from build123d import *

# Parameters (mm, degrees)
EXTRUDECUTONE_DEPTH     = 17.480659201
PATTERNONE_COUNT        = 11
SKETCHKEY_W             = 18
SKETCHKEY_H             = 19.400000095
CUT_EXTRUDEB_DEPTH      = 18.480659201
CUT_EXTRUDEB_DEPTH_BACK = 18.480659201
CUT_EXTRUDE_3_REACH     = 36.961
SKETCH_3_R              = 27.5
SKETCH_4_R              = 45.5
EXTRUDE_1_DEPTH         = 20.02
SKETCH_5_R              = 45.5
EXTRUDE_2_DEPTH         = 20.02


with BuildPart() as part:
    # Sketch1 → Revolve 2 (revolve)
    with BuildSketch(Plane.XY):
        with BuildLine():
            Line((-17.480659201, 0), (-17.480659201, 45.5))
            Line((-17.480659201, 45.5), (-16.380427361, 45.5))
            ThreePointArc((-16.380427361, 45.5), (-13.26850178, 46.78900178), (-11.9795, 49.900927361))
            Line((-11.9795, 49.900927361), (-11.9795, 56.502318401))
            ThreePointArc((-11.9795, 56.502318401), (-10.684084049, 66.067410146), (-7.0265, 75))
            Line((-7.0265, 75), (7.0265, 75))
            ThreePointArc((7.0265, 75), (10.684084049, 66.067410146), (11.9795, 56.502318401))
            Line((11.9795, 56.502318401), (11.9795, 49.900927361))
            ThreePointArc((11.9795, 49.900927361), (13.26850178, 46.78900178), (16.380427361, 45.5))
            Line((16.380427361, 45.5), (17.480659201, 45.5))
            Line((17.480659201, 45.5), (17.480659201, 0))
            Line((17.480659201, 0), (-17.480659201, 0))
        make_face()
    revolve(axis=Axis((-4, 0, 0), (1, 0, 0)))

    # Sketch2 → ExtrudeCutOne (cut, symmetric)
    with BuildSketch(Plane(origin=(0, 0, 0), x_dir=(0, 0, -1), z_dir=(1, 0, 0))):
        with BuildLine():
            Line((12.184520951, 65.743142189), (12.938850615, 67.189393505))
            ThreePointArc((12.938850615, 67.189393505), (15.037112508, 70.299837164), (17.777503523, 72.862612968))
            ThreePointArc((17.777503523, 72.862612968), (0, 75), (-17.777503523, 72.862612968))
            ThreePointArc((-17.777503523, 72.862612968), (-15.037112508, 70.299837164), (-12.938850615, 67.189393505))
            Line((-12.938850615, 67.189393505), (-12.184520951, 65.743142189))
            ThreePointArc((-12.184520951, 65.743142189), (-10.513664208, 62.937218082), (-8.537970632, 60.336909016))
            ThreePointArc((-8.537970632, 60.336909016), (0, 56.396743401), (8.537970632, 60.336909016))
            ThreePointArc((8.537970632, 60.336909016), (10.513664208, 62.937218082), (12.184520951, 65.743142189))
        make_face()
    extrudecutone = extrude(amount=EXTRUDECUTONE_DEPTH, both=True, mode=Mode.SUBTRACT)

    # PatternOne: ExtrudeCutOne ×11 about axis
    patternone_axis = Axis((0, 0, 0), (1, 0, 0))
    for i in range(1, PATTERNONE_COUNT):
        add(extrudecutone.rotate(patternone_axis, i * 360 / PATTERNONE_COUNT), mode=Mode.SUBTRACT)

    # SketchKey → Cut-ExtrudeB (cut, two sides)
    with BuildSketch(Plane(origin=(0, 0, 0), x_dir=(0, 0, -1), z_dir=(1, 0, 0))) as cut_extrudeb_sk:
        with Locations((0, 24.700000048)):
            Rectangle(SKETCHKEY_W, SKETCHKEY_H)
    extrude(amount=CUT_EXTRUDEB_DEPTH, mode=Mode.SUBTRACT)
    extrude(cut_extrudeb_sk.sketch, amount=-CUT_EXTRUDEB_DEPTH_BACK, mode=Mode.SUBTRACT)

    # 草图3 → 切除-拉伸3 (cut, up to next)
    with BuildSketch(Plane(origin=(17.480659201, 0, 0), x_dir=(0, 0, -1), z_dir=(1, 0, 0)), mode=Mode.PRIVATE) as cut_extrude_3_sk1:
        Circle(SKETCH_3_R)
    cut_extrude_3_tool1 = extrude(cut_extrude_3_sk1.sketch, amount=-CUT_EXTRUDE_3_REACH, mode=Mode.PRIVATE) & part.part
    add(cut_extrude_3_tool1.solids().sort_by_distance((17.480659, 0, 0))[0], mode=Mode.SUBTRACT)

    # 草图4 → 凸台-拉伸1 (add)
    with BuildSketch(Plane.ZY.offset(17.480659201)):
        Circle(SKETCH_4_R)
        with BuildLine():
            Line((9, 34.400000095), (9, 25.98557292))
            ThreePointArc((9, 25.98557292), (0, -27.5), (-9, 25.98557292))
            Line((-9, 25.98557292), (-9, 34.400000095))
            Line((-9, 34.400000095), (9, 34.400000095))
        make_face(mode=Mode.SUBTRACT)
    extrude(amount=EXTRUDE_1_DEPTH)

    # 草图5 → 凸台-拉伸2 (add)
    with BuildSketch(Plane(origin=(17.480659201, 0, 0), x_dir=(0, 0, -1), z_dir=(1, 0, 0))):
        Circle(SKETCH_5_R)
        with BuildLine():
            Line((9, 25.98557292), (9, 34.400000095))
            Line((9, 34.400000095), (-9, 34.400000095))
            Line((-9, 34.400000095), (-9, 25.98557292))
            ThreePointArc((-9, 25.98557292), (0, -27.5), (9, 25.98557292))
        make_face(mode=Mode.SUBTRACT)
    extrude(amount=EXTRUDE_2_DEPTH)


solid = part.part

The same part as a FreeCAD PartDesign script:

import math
import FreeCAD as App
import Part
import Sketcher

V = App.Vector

doc = App.newDocument("Part")
body = doc.addObject("PartDesign::Body", "Body")

# Sketch on XY plane
sketch1 = body.newObject("Sketcher::SketchObject", "Sketch")
sketch1.AttachmentSupport = (doc.getObject("XY_Plane"), [""])
sketch1.MapMode = "FlatFace"
sketch1.addGeometry([
    Part.LineSegment(V(-17.480659, 45.5, 0), V(-17.480659, 0, 0)),  # 0
    Part.LineSegment(V(-17.480659, 0, 0), V(17.480659, 0, 0)),  # 1
    Part.LineSegment(V(17.480659, 0, 0), V(17.480659, 45.5, 0)),  # 2
    Part.LineSegment(V(17.480659, 45.5, 0), V(16.380427, 45.5, 0)),  # 3
    Part.ArcOfCircle(Part.Circle(V(16.380427, 49.900927, 0), V(0, 0, 1), 4.400927), math.radians(180), math.radians(270)),  # 4
    Part.LineSegment(V(11.9795, 49.900927, 0), V(11.9795, 56.502318, 0)),  # 5
    Part.ArcOfCircle(Part.Circle(V(-26.1194, 56.212788, 0), V(0, 0, 1), 38.1), math.radians(0.435407), math.radians(29.544716)),  # 6
    Part.LineSegment(V(7.0265, 75, 0), V(-7.0265, 75, 0)),  # 7
    Part.ArcOfCircle(Part.Circle(V(26.1194, 56.212788, 0), V(0, 0, 1), 38.1), math.radians(150.455284), math.radians(179.564593)),  # 8
    Part.LineSegment(V(-11.9795, 56.502318, 0), V(-11.9795, 49.900927, 0)),  # 9
    Part.ArcOfCircle(Part.Circle(V(-16.380427, 49.900927, 0), V(0, 0, 1), 4.400927), math.radians(-90), math.radians(0)),  # 10
    Part.LineSegment(V(-16.380427, 45.5, 0), V(-17.480659, 45.5, 0)),  # 11
], False)
sketch1.addConstraint([
    Sketcher.Constraint("Coincident", 0, 2, 1, 1),
    Sketcher.Constraint("Coincident", 1, 2, 2, 1),
    Sketcher.Constraint("Coincident", 2, 2, 3, 1),
    Sketcher.Constraint("Tangent", 3, 2, 4, 2),
    Sketcher.Constraint("Tangent", 4, 1, 5, 1),
    Sketcher.Constraint("Coincident", 5, 2, 6, 1),
    Sketcher.Constraint("Coincident", 6, 2, 7, 1),
    Sketcher.Constraint("Coincident", 7, 2, 8, 1),
    Sketcher.Constraint("Coincident", 8, 2, 9, 1),
    Sketcher.Constraint("Tangent", 9, 2, 10, 2),
    Sketcher.Constraint("Tangent", 10, 1, 11, 1),
    Sketcher.Constraint("Coincident", 11, 2, 0, 1),
    Sketcher.Constraint("Vertical", 0),
    Sketcher.Constraint("Horizontal", 1),
    Sketcher.Constraint("Vertical", 2),
    Sketcher.Constraint("Horizontal", 3),
    Sketcher.Constraint("Vertical", 5),
    Sketcher.Constraint("Horizontal", 7),
    Sketcher.Constraint("Vertical", 9),
    Sketcher.Constraint("Horizontal", 11),
    Sketcher.Constraint("Equal", 6, 8),
    Sketcher.Constraint("Equal", 4, 10),
    Sketcher.Constraint("Symmetric", 0, 2, 1, 2, -1, 1),
    Sketcher.Constraint("Symmetric", 6, 3, 8, 3, -2),
    Sketcher.Constraint("Symmetric", 4, 3, 10, 3, -2),
    Sketcher.Constraint("Radius", 6, 38.1),
    Sketcher.Constraint("DistanceY", 0, 2, 0, 1, 45.5),
    Sketcher.Constraint("DistanceY", -1, 1, 6, 2, 75.0),
    Sketcher.Constraint("DistanceX", 7, 2, 7, 1, 14.053),
    Sketcher.Constraint("Radius", 4, 4.400927),
    Sketcher.Constraint("DistanceX", 6, 2, 5, 2, 4.953),
    Sketcher.Constraint("DistanceX", 1, 1, 1, 2, 34.961318),
    Sketcher.Constraint("DistanceY", 5, 1, 5, 2, 6.601391),
])
revolution = body.newObject("PartDesign::Revolution", "Revolution")
revolution.Profile = sketch1
revolution.ReferenceAxis = (sketch1, ["H_Axis"])
revolution.Angle = 360

# Sketch on YZ plane
sketch2 = body.newObject("Sketcher::SketchObject", "Sketch001")
sketch2.AttachmentSupport = (doc.getObject("YZ_Plane"), [""])
sketch2.MapMode = "FlatFace"
sketch2.addGeometry([
    Part.LineSegment(V(65.7, -12.2, 0), V(67.2, -12.9, 0)),  # 0
    Part.ArcOfCircle(Part.Circle(V(59.5, -27.7, 0), V(0, 0, 1), 16.7), math.radians(37), math.radians(62)),  # 1
    Part.ArcOfCircle(Part.Circle(V(0, 0, 0), V(0, 0, 1), 75), math.radians(-14), math.radians(14)),  # 2
    Part.ArcOfCircle(Part.Circle(V(59.5, 27.7, 0), V(0, 0, 1), 16.7), math.radians(-62), math.radians(-37)),  # 3
    Part.LineSegment(V(67.2, 12.9, 0), V(65.7, 12.2, 0)),  # 4
    Part.ArcOfCircle(Part.Circle(V(79.2, -13.5, 0), V(0, 0, 1), 29), math.radians(117.55), math.radians(130.45)),  # 5
    Part.ArcOfCircle(Part.Circle(V(67.6, 0, 0), V(0, 0, 1), 11.2), math.radians(130), math.radians(230)),  # 6
    Part.ArcOfCircle(Part.Circle(V(79.2, 13.5, 0), V(0, 0, 1), 29), math.radians(-130.45), math.radians(-117.55)),  # 7
], False)
sketch2.addConstraint([
    Sketcher.Constraint("Tangent", 0, 2, 1, 2),
    Sketcher.Constraint("Coincident", 1, 1, 2, 1),
    Sketcher.Constraint("Coincident", 2, 2, 3, 2),
    Sketcher.Constraint("Tangent", 3, 1, 4, 1),
    Sketcher.Constraint("Tangent", 4, 2, 5, 1),
    Sketcher.Constraint("Tangent", 5, 2, 6, 1),
    Sketcher.Constraint("Tangent", 6, 2, 7, 1),
    Sketcher.Constraint("Tangent", 7, 2, 0, 1),
    Sketcher.Constraint("Coincident", 2, 3, -1, 1),
    Sketcher.Constraint("Equal", 1, 3),
    Sketcher.Constraint("Equal", 5, 7),
    Sketcher.Constraint("Symmetric", 1, 3, 3, 3, -1),
    Sketcher.Constraint("Symmetric", 5, 3, 7, 3, -1),
    Sketcher.Constraint("Radius", 2, 75.0),
    Sketcher.Constraint("Radius", 1, 16.680351),
    Sketcher.Constraint("Radius", 5, 29.004575),
    Sketcher.Constraint("Radius", 6, 11.220575),
    Sketcher.Constraint("DistanceY", 0, 2, 3, 1, 25.877701),
    Sketcher.Constraint("Distance", 0, 1.631152),
    Sketcher.Constraint("DistanceX", -1, 1, 1, 3, 59.475529),
    Sketcher.Constraint("DistanceX", -1, 1, 5, 3, 79.156371),
])
pocket1 = body.newObject("PartDesign::Pocket", "Pocket")
pocket1.Profile = sketch2
pocket1.Length = 34.961318
pocket1.Midplane = True
doc.recompute()

polarpattern = body.newObject("PartDesign::PolarPattern", "PolarPattern")
polarpattern.Originals = [pocket1]
polarpattern.Axis = (doc.getObject("X_Axis"), [""])
polarpattern.Angle = 360
polarpattern.Occurrences = 11
body.Tip = polarpattern

# Sketch on YZ plane
sketch3 = body.newObject("Sketcher::SketchObject", "Sketch002")
sketch3.AttachmentSupport = (doc.getObject("YZ_Plane"), [""])
sketch3.MapMode = "FlatFace"
sketch3.addGeometry([
    Part.LineSegment(V(34, 9, 0), V(15, 9, 0)),
    Part.LineSegment(V(15, 9, 0), V(15, -9, 0)),
    Part.LineSegment(V(15, -9, 0), V(34, -9, 0)),
    Part.LineSegment(V(34, -9, 0), V(34, 9, 0)),
], False)
sketch3.addConstraint([
    Sketcher.Constraint("Coincident", 0, 2, 1, 1),
    Sketcher.Constraint("Coincident", 1, 2, 2, 1),
    Sketcher.Constraint("Coincident", 2, 2, 3, 1),
    Sketcher.Constraint("Coincident", 3, 2, 0, 1),
    Sketcher.Constraint("Horizontal", 0),
    Sketcher.Constraint("Vertical", 1),
    Sketcher.Constraint("Horizontal", 2),
    Sketcher.Constraint("Vertical", 3),
    Sketcher.Constraint("DistanceY", 1, 2, 1, 1, 18.0),
    Sketcher.Constraint("DistanceX", 0, 2, 0, 1, 19.4),
    Sketcher.Constraint("DistanceX", -1, 1, 0, 2, 15.0),
    Sketcher.Constraint("DistanceY", -1, 1, 0, 2, 9.0),
])
pocket2 = body.newObject("PartDesign::Pocket", "Pocket001")
pocket2.Profile = sketch3
pocket2.Type = "ThroughAll"
pocket2.Midplane = True

# Sketch on YZ plane
sketch4 = body.newObject("Sketcher::SketchObject", "Sketch003")
sketch4.AttachmentSupport = (doc.getObject("YZ_Plane"), [""])
sketch4.MapMode = "FlatFace"
sketch4.AttachmentOffset = App.Placement(V(0, 0, 17.480659), App.Rotation())
sketch4.addGeometry(Part.Circle(V(0, 0, 0), V(0, 0, 1), 28), False)
sketch4.addConstraint([
    Sketcher.Constraint("Coincident", 0, 3, -1, 1),
    Sketcher.Constraint("Diameter", 0, 55.0),
])
pocket3 = body.newObject("PartDesign::Pocket", "Pocket002")
pocket3.Profile = sketch4
pocket3.Type = "UpToFirst"

# Sketch on YZ plane
sketch5 = body.newObject("Sketcher::SketchObject", "Sketch004")
sketch5.AttachmentSupport = (doc.getObject("YZ_Plane"), [""])
sketch5.MapMode = "FlatFace"
sketch5.AttachmentOffset = App.Placement(V(0, 0, -17.480659), App.Rotation())
sketch5.addGeometry([
    Part.Circle(V(0, 0, 0), V(0, 0, 1), 46),  # 0
    Part.LineSegment(V(34, -9, 0), V(34, 9, 0)),  # 1
    Part.LineSegment(V(34, 9, 0), V(26, 9, 0)),  # 2
    Part.ArcOfCircle(Part.Circle(V(0, 0, 0), V(0, 0, 1), 28), math.radians(19), math.radians(341)),  # 3
    Part.LineSegment(V(26, -9, 0), V(34, -9, 0)),  # 4
], False)
sketch5.addConstraint([
    Sketcher.Constraint("Coincident", 1, 2, 2, 1),
    Sketcher.Constraint("Coincident", 2, 2, 3, 1),
    Sketcher.Constraint("Coincident", 3, 2, 4, 1),
    Sketcher.Constraint("Coincident", 4, 2, 1, 1),
    Sketcher.Constraint("Vertical", 1),
    Sketcher.Constraint("Horizontal", 2),
    Sketcher.Constraint("Horizontal", 4),
    Sketcher.Constraint("Coincident", 0, 3, -1, 1),
    Sketcher.Constraint("Coincident", 3, 3, -1, 1),
    Sketcher.Constraint("Vertical", 2, 2, 3, 2),
    Sketcher.Constraint("Diameter", 0, 91.0),
    Sketcher.Constraint("Radius", 3, 27.5),
    Sketcher.Constraint("DistanceY", 1, 1, 1, 2, 18.0),
    Sketcher.Constraint("DistanceX", -1, 1, 1, 2, 34.4),
])
pad1 = body.newObject("PartDesign::Pad", "Pad")
pad1.Profile = sketch5
pad1.Length = 20.02
pad1.Reversed = True

# Sketch on YZ plane
sketch6 = body.newObject("Sketcher::SketchObject", "Sketch005")
sketch6.AttachmentSupport = (doc.getObject("YZ_Plane"), [""])
sketch6.MapMode = "FlatFace"
sketch6.AttachmentOffset = App.Placement(V(0, 0, 17.480659), App.Rotation())
sketch6.addGeometry([
    Part.Circle(V(0, 0, 0), V(0, 0, 1), 46),  # 0
    Part.LineSegment(V(34, -9, 0), V(26, -9, 0)),  # 1
    Part.ArcOfCircle(Part.Circle(V(0, 0, 0), V(0, 0, 1), 28), math.radians(19), math.radians(341)),  # 2
    Part.LineSegment(V(26, 9, 0), V(34, 9, 0)),  # 3
    Part.LineSegment(V(34, 9, 0), V(34, -9, 0)),  # 4
], False)
sketch6.addConstraint([
    Sketcher.Constraint("Coincident", 1, 2, 2, 2),
    Sketcher.Constraint("Coincident", 2, 1, 3, 1),
    Sketcher.Constraint("Coincident", 3, 2, 4, 1),
    Sketcher.Constraint("Coincident", 4, 2, 1, 1),
    Sketcher.Constraint("Horizontal", 1),
    Sketcher.Constraint("Horizontal", 3),
    Sketcher.Constraint("Vertical", 4),
    Sketcher.Constraint("Coincident", 0, 3, -1, 1),
    Sketcher.Constraint("Coincident", 2, 3, -1, 1),
    Sketcher.Constraint("Vertical", 1, 2, 2, 1),
    Sketcher.Constraint("Diameter", 0, 91.0),
    Sketcher.Constraint("Radius", 2, 27.5),
    Sketcher.Constraint("DistanceY", 4, 2, 4, 1, 18.0),
    Sketcher.Constraint("DistanceX", -1, 1, 3, 2, 34.4),
])
pad2 = body.newObject("PartDesign::Pad", "Pad001")
pad2.Profile = sketch6
pad2.Length = 20.02

doc.recompute()
